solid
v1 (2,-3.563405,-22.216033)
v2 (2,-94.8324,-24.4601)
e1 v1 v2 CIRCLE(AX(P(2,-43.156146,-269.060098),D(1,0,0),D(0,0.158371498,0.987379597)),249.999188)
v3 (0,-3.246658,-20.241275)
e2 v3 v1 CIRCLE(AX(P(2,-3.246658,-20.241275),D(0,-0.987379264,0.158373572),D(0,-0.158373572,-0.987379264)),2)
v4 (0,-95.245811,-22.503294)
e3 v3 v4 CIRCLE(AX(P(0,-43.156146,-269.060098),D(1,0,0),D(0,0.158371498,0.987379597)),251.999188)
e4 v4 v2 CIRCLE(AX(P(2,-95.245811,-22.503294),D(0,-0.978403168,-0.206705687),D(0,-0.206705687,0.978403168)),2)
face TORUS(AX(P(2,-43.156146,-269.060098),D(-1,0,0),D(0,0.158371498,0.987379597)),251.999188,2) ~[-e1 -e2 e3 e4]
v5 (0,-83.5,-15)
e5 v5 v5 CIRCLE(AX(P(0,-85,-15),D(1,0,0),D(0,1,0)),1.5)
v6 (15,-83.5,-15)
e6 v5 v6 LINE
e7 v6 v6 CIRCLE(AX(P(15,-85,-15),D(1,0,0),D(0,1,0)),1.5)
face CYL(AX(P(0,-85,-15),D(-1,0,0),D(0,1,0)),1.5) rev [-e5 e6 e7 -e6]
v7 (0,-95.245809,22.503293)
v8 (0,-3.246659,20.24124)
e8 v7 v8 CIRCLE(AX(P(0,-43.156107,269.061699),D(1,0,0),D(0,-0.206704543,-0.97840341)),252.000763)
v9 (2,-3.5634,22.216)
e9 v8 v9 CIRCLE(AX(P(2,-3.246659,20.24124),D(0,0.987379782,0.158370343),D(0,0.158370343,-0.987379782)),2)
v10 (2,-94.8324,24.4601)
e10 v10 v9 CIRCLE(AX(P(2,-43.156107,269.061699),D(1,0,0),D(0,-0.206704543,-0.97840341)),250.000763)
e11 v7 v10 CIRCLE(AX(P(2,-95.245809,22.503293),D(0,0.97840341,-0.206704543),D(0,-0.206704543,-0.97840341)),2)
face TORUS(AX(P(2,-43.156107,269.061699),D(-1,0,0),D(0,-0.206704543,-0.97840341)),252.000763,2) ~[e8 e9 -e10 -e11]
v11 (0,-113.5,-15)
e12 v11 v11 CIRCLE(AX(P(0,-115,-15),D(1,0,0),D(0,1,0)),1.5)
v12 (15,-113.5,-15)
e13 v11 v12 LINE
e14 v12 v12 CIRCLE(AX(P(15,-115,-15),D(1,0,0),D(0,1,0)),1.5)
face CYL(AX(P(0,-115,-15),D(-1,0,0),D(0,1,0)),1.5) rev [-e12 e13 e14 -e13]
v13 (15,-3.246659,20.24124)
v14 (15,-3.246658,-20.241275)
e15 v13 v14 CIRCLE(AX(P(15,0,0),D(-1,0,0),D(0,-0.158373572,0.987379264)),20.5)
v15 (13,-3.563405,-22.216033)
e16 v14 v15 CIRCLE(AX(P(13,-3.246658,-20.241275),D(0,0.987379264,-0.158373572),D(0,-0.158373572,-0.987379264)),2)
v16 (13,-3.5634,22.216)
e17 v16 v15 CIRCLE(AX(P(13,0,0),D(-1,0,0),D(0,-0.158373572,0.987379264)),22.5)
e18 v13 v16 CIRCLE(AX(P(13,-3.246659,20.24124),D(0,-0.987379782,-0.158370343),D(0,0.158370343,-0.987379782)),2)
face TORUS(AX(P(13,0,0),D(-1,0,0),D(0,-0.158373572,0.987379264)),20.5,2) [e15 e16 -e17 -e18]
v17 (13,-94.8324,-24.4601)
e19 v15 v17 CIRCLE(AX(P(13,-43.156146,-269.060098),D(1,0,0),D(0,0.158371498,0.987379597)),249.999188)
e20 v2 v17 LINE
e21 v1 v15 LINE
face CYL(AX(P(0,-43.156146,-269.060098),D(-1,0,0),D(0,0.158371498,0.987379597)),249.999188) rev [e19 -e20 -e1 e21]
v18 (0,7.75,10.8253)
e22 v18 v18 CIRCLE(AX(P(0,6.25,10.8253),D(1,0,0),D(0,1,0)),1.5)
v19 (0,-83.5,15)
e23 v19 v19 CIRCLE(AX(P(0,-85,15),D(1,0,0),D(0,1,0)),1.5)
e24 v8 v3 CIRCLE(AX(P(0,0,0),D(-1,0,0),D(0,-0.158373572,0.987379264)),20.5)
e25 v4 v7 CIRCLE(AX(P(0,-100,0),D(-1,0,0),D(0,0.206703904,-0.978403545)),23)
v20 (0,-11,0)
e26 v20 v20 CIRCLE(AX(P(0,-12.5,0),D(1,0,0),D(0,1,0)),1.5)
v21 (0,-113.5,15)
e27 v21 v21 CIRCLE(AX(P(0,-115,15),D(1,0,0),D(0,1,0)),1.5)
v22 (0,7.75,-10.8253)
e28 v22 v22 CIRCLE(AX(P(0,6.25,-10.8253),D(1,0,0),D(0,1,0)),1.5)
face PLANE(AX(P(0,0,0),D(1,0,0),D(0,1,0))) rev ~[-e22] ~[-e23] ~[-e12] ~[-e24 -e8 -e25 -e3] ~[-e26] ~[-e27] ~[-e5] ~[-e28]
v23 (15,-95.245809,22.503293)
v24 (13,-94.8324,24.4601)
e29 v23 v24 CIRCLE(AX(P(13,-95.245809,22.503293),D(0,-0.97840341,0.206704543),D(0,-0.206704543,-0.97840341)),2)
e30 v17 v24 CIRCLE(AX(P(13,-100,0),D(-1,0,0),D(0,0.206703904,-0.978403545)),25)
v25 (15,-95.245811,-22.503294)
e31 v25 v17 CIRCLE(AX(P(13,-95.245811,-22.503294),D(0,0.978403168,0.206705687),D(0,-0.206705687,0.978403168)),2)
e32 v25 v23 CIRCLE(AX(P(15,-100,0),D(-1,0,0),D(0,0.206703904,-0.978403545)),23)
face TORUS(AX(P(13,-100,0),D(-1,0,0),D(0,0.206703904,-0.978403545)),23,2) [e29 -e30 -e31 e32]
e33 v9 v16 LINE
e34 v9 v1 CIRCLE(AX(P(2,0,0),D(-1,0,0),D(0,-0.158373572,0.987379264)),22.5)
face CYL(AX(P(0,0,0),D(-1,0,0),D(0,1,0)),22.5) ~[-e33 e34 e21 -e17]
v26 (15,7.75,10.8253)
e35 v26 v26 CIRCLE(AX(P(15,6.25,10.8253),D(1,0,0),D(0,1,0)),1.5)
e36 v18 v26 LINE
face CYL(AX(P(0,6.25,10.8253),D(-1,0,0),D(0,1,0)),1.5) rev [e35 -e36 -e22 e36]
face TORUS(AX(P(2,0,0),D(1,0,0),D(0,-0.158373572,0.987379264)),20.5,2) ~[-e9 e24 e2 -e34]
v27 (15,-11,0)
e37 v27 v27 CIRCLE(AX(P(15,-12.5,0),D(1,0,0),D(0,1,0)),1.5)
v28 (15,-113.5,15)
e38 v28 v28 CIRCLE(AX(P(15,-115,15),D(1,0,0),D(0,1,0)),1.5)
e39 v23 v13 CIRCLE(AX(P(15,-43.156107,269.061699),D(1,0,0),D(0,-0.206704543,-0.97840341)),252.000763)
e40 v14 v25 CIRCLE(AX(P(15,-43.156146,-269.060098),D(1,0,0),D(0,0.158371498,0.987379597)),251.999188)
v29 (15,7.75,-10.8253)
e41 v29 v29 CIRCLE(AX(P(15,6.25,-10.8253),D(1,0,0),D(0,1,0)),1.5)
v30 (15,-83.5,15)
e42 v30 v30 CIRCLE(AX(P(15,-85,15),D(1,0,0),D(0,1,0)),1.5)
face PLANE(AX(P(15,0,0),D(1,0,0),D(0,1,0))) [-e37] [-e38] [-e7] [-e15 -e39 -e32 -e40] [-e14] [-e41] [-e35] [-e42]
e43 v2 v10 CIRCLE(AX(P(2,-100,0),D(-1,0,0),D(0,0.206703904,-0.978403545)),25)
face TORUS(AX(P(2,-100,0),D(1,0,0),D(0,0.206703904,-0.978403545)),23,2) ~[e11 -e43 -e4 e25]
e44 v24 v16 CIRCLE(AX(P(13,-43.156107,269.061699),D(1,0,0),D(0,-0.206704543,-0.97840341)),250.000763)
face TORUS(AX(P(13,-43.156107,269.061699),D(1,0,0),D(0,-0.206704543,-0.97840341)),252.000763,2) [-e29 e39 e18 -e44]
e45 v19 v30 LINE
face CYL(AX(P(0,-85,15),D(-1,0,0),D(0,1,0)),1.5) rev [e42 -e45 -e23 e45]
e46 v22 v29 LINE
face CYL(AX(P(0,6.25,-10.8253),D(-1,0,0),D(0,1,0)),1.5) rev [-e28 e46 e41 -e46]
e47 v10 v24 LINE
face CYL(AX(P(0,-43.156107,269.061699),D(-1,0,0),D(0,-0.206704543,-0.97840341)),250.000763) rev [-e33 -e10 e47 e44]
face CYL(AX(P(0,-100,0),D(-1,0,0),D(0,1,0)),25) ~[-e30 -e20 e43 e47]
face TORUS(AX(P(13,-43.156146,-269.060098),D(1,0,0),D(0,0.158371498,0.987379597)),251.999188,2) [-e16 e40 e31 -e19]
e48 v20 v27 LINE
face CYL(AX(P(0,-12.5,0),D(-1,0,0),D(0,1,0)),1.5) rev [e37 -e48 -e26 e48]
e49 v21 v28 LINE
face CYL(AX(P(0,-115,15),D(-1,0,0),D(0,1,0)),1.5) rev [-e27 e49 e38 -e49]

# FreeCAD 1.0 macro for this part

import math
import FreeCAD as App
import Part
import Sketcher


def edges_at(feature, points):
    """Names of the edges that pass closest to the given points."""
    edges = feature.Shape.Edges
    near = lambda p: min(range(len(edges)), key=lambda i: edges[i].distToShape(Part.Vertex(*p))[0])
    return sorted({f"Edge{near(p) + 1}" for p in points})

doc = App.newDocument("Part")
body = doc.addObject("PartDesign::Body", "Body")

sketch1 = body.newObject("Sketcher::SketchObject", "Sketch")
sketch1.AttachmentSupport = (doc.getObject("YZ_Plane"), [""])
sketch1.MapMode = "FlatFace"
sketch1.addGeometry([
    Part.ArcOfCircle(Part.Circle(App.Vector(0, 0, 0), App.Vector(0, 0, 1), 22.5), math.radians(-99), math.radians(99)),
    Part.ArcOfCircle(Part.Circle(App.Vector(-43.2, 269.1, 0), App.Vector(0, 0, 1), 250), math.radians(-102), math.radians(-81)),
    Part.ArcOfCircle(Part.Circle(App.Vector(-100, 0, 0), App.Vector(0, 0, 1), 25), math.radians(78), math.radians(282)),
    Part.ArcOfCircle(Part.Circle(App.Vector(-43.2, -269.1, 0), App.Vector(0, 0, 1), 250), math.radians(81), math.radians(102)),
    Part.Circle(App.Vector(6.2, -10.8, 0), App.Vector(0, 0, 1), 1.5),
    Part.Circle(App.Vector(-12.5, 0, 0), App.Vector(0, 0, 1), 1.5),
    Part.Circle(App.Vector(6.2, 10.8, 0), App.Vector(0, 0, 1), 1.5),
    Part.Circle(App.Vector(-115, 15, 0), App.Vector(0, 0, 1), 1.5),
    Part.Circle(App.Vector(-85, 15, 0), App.Vector(0, 0, 1), 1.5),
    Part.Circle(App.Vector(-115, -15, 0), App.Vector(0, 0, 1), 1.5),
    Part.Circle(App.Vector(-85, -15, 0), App.Vector(0, 0, 1), 1.5),
], False)
sketch1.addConstraint([
    Sketcher.Constraint("Tangent", 0, 2, 1, 2),
    Sketcher.Constraint("Tangent", 1, 1, 2, 1),
    Sketcher.Constraint("Tangent", 2, 2, 3, 2),
    Sketcher.Constraint("Tangent", 3, 1, 0, 1),
    Sketcher.Constraint("Coincident", 0, 3, -1, 1),
    Sketcher.Constraint("Equal", 1, 3),
    Sketcher.Constraint("Equal", 4, 5),
    Sketcher.Constraint("Equal", 5, 6),
    Sketcher.Constraint("Equal", 6, 7),
    Sketcher.Constraint("Equal", 7, 8),
    Sketcher.Constraint("Equal", 8, 9),
    Sketcher.Constraint("Equal", 9, 10),
    Sketcher.Constraint("Symmetric", 4, 3, 6, 3, -1),
    Sketcher.Constraint("Symmetric", 7, 3, 9, 3, -1),
    Sketcher.Constraint("Symmetric", 8, 3, 10, 3, -1),
    Sketcher.Constraint("PointOnObject", 2, 3, -1),
    Sketcher.Constraint("PointOnObject", 5, 3, -1),
    Sketcher.Constraint("Horizontal", 7, 3, 8, 3),
    Sketcher.Constraint("Diameter", 4, 3.0),
    Sketcher.Constraint("Radius", 1, 250.0),
    Sketcher.Constraint("Radius", 2, 25.0),
    Sketcher.Constraint("Radius", 0, 22.5),
    Sketcher.Constraint("DistanceX", 2, 3, -1, 1, 100.0),
    Sketcher.Constraint("DistanceX", 7, 3, 8, 3, 30.0),
    Sketcher.Constraint("DistanceY", 9, 3, 7, 3, 30.0),
    Sketcher.Constraint("DistanceX", 7, 3, -1, 1, 115.0),
    Sketcher.Constraint("DistanceX", 5, 3, -1, 1, 12.5),
    Sketcher.Constraint("DistanceX", -1, 1, 4, 3, 6.25),
    Sketcher.Constraint("DistanceY", 4, 3, -1, 1, 10.8253),
])
pad1 = body.newObject("PartDesign::Pad", "Pad")
pad1.Profile = sketch1
pad1.Length = 15
doc.recompute()

fillet = body.newObject("PartDesign::Fillet", "Fillet")
fillet.Base = (pad1, edges_at(pad1, [
    (15, -49.301, 19.137),
    (15, -125, 0),
    (15, -49.301, -19.137),
    (15, 22.5, 0),
    (0, -49.301, 19.137),
    (0, -125, 0),
    (0, -49.301, -19.137),
    (0, 22.5, 0),
]))
fillet.Radius = 2

doc.recompute()
